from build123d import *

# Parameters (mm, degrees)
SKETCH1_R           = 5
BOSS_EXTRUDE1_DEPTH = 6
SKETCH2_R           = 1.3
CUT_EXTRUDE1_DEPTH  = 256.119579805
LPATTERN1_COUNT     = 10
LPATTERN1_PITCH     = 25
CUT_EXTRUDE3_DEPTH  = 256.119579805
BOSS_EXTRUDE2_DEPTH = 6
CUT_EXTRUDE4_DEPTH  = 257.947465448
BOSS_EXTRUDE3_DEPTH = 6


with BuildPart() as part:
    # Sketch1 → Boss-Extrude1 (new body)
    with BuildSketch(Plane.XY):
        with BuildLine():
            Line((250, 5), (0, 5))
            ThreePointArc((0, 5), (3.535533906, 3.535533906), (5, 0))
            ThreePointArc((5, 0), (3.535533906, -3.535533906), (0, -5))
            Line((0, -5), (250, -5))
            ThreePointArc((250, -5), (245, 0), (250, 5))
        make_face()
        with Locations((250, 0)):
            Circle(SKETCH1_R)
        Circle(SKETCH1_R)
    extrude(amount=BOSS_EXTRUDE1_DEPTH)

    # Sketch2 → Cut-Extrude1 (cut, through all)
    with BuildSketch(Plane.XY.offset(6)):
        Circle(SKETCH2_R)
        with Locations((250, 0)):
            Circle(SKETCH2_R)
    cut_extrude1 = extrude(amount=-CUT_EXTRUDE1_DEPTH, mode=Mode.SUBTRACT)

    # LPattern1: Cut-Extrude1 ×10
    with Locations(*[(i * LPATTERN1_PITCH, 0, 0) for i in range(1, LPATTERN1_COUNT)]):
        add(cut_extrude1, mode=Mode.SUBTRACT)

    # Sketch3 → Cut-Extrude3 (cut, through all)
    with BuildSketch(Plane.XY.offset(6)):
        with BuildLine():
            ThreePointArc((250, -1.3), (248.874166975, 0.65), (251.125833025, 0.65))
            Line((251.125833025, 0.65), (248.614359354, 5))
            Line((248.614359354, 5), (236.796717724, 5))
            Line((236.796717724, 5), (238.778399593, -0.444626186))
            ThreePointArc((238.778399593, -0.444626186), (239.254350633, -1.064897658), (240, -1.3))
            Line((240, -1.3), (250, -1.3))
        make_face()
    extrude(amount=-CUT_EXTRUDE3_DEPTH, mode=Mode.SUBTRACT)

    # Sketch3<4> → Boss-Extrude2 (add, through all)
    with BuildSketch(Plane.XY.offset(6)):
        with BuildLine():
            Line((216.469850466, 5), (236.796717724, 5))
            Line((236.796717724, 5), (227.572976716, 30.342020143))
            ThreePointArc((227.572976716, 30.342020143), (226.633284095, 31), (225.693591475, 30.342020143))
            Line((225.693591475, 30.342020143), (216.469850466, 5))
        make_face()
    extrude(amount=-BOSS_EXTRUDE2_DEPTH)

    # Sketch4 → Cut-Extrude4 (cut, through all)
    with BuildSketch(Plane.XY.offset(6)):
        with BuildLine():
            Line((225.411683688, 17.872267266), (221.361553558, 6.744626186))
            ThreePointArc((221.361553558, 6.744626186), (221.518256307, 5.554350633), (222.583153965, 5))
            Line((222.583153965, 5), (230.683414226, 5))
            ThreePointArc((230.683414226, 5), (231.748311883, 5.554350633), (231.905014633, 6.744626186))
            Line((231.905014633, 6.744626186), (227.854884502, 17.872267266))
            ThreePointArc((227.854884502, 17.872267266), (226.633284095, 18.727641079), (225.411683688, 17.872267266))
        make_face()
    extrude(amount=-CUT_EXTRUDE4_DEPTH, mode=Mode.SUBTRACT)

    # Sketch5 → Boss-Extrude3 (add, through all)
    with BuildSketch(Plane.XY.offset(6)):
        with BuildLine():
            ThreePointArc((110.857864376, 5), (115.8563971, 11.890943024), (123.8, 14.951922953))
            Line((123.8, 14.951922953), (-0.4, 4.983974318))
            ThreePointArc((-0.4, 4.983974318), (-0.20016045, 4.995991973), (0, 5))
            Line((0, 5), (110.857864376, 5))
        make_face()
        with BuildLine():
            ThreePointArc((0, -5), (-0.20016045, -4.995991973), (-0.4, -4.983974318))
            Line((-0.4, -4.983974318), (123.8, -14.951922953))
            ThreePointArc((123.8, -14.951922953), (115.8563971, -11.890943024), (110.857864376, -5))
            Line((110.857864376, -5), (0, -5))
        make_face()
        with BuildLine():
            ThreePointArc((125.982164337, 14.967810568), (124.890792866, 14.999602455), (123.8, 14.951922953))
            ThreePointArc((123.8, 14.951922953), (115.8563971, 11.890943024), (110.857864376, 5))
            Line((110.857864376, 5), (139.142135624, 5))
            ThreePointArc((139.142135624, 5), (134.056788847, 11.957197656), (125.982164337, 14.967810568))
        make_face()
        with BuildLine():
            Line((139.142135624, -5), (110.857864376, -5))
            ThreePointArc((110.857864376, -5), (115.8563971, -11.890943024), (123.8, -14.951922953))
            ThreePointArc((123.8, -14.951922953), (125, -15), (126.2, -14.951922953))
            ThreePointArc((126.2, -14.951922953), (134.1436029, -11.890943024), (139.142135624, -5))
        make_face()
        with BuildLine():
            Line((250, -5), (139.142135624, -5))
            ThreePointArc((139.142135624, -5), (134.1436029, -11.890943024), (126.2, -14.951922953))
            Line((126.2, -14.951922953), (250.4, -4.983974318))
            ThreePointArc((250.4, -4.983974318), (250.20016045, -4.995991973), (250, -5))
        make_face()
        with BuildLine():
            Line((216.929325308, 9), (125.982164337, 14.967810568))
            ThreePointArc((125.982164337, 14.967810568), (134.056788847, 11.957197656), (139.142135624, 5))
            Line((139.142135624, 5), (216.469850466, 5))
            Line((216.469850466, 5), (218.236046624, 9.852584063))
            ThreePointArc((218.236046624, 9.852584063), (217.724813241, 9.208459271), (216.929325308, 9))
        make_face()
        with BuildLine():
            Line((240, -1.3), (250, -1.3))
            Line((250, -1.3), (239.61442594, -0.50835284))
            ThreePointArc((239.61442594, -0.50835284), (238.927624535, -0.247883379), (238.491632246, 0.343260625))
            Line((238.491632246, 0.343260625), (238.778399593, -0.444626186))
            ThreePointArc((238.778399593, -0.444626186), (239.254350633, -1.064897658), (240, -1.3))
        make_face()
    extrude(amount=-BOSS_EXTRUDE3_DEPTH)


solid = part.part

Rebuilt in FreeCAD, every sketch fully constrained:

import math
import FreeCAD as App
import Part
import Sketcher
from FreeCAD import Vector
Q = App.Units.Quantity

doc = App.newDocument("Part")
body = doc.addObject("PartDesign::Body", "Body")

# Sketch on XY plane
sketch1 = doc.addObject("Sketcher::SketchObject", "Sketch")
body.addObject(sketch1)
sketch1.AttachmentSupport = (doc.XY_Plane, [""])
sketch1.MapMode = "FlatFace"
sketch1.addGeometry([
    Part.LineSegment(Vector(250, 5, 0), Vector(0, 5, 0)),
    Part.ArcOfCircle(Part.Circle(Vector(0, 0, 0), Vector(0, 0, 1), 5), math.radians(90), math.radians(270)),
    Part.LineSegment(Vector(0, -5, 0), Vector(250, -5, 0)),
    Part.ArcOfCircle(Part.Circle(Vector(250, 0, 0), Vector(0, 0, 1), 5), math.radians(-90), math.radians(90)),
], False)
sketch1.addConstraint([
    Sketcher.Constraint("Tangent", 0, 2, 1, 1),
    Sketcher.Constraint("Tangent", 1, 2, 2, 1),
    Sketcher.Constraint("Tangent", 2, 2, 3, 1),
    Sketcher.Constraint("Tangent", 3, 2, 0, 1),
    Sketcher.Constraint("Horizontal", 0),
    Sketcher.Constraint("Horizontal", 2),
    Sketcher.Constraint("Coincident", 1, 3, -1, 1),
    Sketcher.Constraint("Radius", 1, Q("5 mm")),
    Sketcher.Constraint("DistanceX", 0, 2, 0, 1, Q("250 mm")),
])
pad1 = doc.addObject("PartDesign::Pad", "Pad")
body.addObject(pad1)
pad1.Profile = sketch1
pad1.Length = 6

# Sketch on XY plane
sketch2 = doc.addObject("Sketcher::SketchObject", "Sketch001")
body.addObject(sketch2)
sketch2.AttachmentSupport = (doc.XY_Plane, [""])
sketch2.MapMode = "FlatFace"
sketch2.AttachmentOffset = App.Placement(Vector(0, 0, 6), App.Rotation())
sketch2.addGeometry([
    Part.Circle(Vector(0, 0, 0), Vector(0, 0, 1), 1.3),
    Part.Circle(Vector(250, 0, 0), Vector(0, 0, 1), 1.3),
], False)
sketch2.addConstraint([
    Sketcher.Constraint("Coincident", 0, 3, -1, 1),
    Sketcher.Constraint("Equal", 0, 1),
    Sketcher.Constraint("PointOnObject", 1, 3, -1),
    Sketcher.Constraint("Diameter", 0, Q("2.6 mm")),
    Sketcher.Constraint("DistanceX", -1, 1, 1, 3, Q("250 mm")),
])
pocket1 = doc.addObject("PartDesign::Pocket", "Pocket")
body.addObject(pocket1)
pocket1.Profile = sketch2
pocket1.Type = "ThroughAll"
doc.recompute()

linearpattern = doc.addObject("PartDesign::LinearPattern", "LinearPattern")
body.addObject(linearpattern)
linearpattern.Originals = [pocket1]
linearpattern.Direction = (doc.X_Axis, [""])
linearpattern.Mode = "offset"
linearpattern.Offset = 25
linearpattern.Occurrences = 10
body.Tip = linearpattern

# Sketch on XY plane
sketch3 = doc.addObject("Sketcher::SketchObject", "Sketch002")
body.addObject(sketch3)
sketch3.AttachmentSupport = (doc.XY_Plane, [""])
sketch3.MapMode = "FlatFace"
sketch3.AttachmentOffset = App.Placement(Vector(0, 0, 6), App.Rotation())
sketch3.addGeometry([
    Part.ArcOfCircle(Part.Circle(Vector(250, 0, 0), Vector(0, 0, 1), 1.3), math.radians(30), math.radians(270)),  # 0
    Part.LineSegment(Vector(251.1, 0.7, 0), Vector(248.6, 5, 0)),  # 1
    Part.LineSegment(Vector(248.6, 5, 0), Vector(236.8, 5, 0)),  # 2
    Part.LineSegment(Vector(236.8, 5, 0), Vector(238.8, -0.4, 0)),  # 3
    Part.ArcOfCircle(Part.Circle(Vector(240, 0, 0), Vector(0, 0, 1), 1.3), math.radians(-160), math.radians(-90)),  # 4
    Part.LineSegment(Vector(240, -1.3, 0), Vector(250, -1.3, 0)),  # 5
], False)
sketch3.addConstraint([
    Sketcher.Constraint("Tangent", 0, 1, 1, 1),
    Sketcher.Constraint("Coincident", 1, 2, 2, 1),
    Sketcher.Constraint("Coincident", 2, 2, 3, 1),
    Sketcher.Constraint("Tangent", 3, 2, 4, 1),
    Sketcher.Constraint("Tangent", 4, 2, 5, 1),
    Sketcher.Constraint("Tangent", 5, 2, 0, 2),
    Sketcher.Constraint("Horizontal", 2),
    Sketcher.Constraint("Horizontal", 5),
    Sketcher.Constraint("Equal", 0, 4),
    Sketcher.Constraint("PointOnObject", 0, 3, -1),
    Sketcher.Constraint("Radius", 0, Q("1.3 mm")),
    Sketcher.Constraint("DistanceX", 5, 1, 5, 2, Q("10 mm")),
    Sketcher.Constraint("Angle", 1, Q("120 deg")),
    Sketcher.Constraint("Angle", 3, Q("-70 deg")),
    Sketcher.Constraint("DistanceX", -1, 1, 0, 3, Q("250 mm")),
    Sketcher.Constraint("DistanceY", -1, 1, 1, 2, Q("5 mm")),
])
pocket2 = doc.addObject("PartDesign::Pocket", "Pocket001")
body.addObject(pocket2)
pocket2.Profile = sketch3
pocket2.Type = "ThroughAll"

# Sketch on XY plane
sketch4 = doc.addObject("Sketcher::SketchObject", "Sketch003")
body.addObject(sketch4)
sketch4.AttachmentSupport = (doc.XY_Plane, [""])
sketch4.MapMode = "FlatFace"
sketch4.AttachmentOffset = App.Placement(Vector(0, 0, 6), App.Rotation())
sketch4.addGeometry([
    Part.LineSegment(Vector(216.5, 5, 0), Vector(236.8, 5, 0)),
    Part.LineSegment(Vector(236.8, 5, 0), Vector(227.6, 30.3, 0)),
    Part.ArcOfCircle(Part.Circle(Vector(226.6, 30, 0), Vector(0, 0, 1), 1), math.radians(20), math.radians(160)),
    Part.LineSegment(Vector(225.7, 30.3, 0), Vector(216.5, 5, 0)),
], False)
sketch4.addConstraint([
    Sketcher.Constraint("Coincident", 0, 2, 1, 1),
    Sketcher.Constraint("Tangent", 1, 2, 2, 1),
    Sketcher.Constraint("Tangent", 2, 2, 3, 1),
    Sketcher.Constraint("Coincident", 3, 2, 0, 1),
    Sketcher.Constraint("Horizontal", 0),
    Sketcher.Constraint("Horizontal", 1, 2, 2, 2),
    Sketcher.Constraint("Radius", 2, Q("1 mm")),
    Sketcher.Constraint("Angle", 1, Q("110 deg")),
    Sketcher.Constraint("DistanceY", -1, 1, 2, 3, Q("30 mm")),
    Sketcher.Constraint("DistanceY", -1, 1, 0, 2, Q("5 mm")),
    Sketcher.Constraint("DistanceX", -1, 1, 2, 2, Q("225.693591 mm")),
])
pad2 = doc.addObject("PartDesign::Pad", "Pad001")
body.addObject(pad2)
pad2.Profile = sketch4
pad2.Length = 6
pad2.Reversed = True

# Sketch on XY plane
sketch5 = doc.addObject("Sketcher::SketchObject", "Sketch004")
body.addObject(sketch5)
sketch5.AttachmentSupport = (doc.XY_Plane, [""])
sketch5.MapMode = "FlatFace"
sketch5.AttachmentOffset = App.Placement(Vector(0, 0, 6), App.Rotation())
sketch5.addGeometry([
    Part.LineSegment(Vector(225.4, 17.9, 0), Vector(221.4, 6.7, 0)),  # 0
    Part.ArcOfCircle(Part.Circle(Vector(222.6, 6.3, 0), Vector(0, 0, 1), 1.3), math.radians(160), math.radians(270)),  # 1
    Part.LineSegment(Vector(222.6, 5, 0), Vector(230.7, 5, 0)),  # 2
    Part.ArcOfCircle(Part.Circle(Vector(230.7, 6.3, 0), Vector(0, 0, 1), 1.3), math.radians(-90), math.radians(20)),  # 3
    Part.LineSegment(Vector(231.9, 6.7, 0), Vector(227.9, 17.9, 0)),  # 4
    Part.ArcOfCircle(Part.Circle(Vector(226.6, 17.4, 0), Vector(0, 0, 1), 1.3), math.radians(20), math.radians(160)),  # 5
], False)
sketch5.addConstraint([
    Sketcher.Constraint("Tangent", 0, 2, 1, 1),
    Sketcher.Constraint("Tangent", 1, 2, 2, 1),
    Sketcher.Constraint("Tangent", 2, 2, 3, 1),
    Sketcher.Constraint("Tangent", 3, 2, 4, 1),
    Sketcher.Constraint("Tangent", 4, 2, 5, 1),
    Sketcher.Constraint("Tangent", 5, 2, 0, 1),
    Sketcher.Constraint("Horizontal", 2),
    Sketcher.Constraint("Equal", 1, 3),
    Sketcher.Constraint("Equal", 3, 5),
    Sketcher.Constraint("Horizontal", 0, 2, 3, 2),
    Sketcher.Constraint("Radius", 1, Q("1.3 mm")),
    Sketcher.Constraint("Angle", 0, Q("-110 deg")),
    Sketcher.Constraint("DistanceY", -1, 1, 1, 2, Q("5 mm")),
    Sketcher.Constraint("DistanceX", 2, 1, 2, 2, Q("8.10026 mm")),
    Sketcher.Constraint("DistanceX", -1, 1, 1, 3, Q("222.583154 mm")),
])
pocket3 = doc.addObject("PartDesign::Pocket", "Pocket002")
body.addObject(pocket3)
pocket3.Profile = sketch5
pocket3.Type = "ThroughAll"

# Sketch on XY plane
sketch6 = doc.addObject("Sketcher::SketchObject", "Sketch005")
body.addObject(sketch6)
sketch6.AttachmentSupport = (doc.XY_Plane, [""])
sketch6.MapMode = "FlatFace"
sketch6.AttachmentOffset = App.Placement(Vector(0, 0, 6), App.Rotation())
sketch6.addGeometry([
    Part.LineSegment(Vector(123.8, 14.95, 0), Vector(-0.4, 4.98, 0)),  # 0
    Part.ArcOfCircle(Part.Circle(Vector(0, 0, 0), Vector(0, 0, 1), 5), math.radians(90), math.radians(94.59)),  # 1
    Part.LineSegment(Vector(0, 5, 0), Vector(216.47, 5, 0)),  # 2
    Part.LineSegment(Vector(216.47, 5, 0), Vector(218.24, 9.85, 0)),  # 3
    Part.ArcOfCircle(Part.Circle(Vector(217.01, 10.3, 0), Vector(0, 0, 1), 1.3), math.radians(-94), math.radians(-20)),  # 4
    Part.LineSegment(Vector(216.93, 9, 0), Vector(125.98, 14.97, 0)),  # 5
    Part.ArcOfCircle(Part.Circle(Vector(125, 0, 0), Vector(0, 0, 1), 15), math.radians(86.25), math.radians(94.59)),  # 6
    Part.ArcOfCircle(Part.Circle(Vector(0, 0, 0), Vector(0, 0, 1), 5), math.radians(-94.59), math.radians(-90)),  # 7
    Part.LineSegment(Vector(-0.4, -4.98, 0), Vector(123.8, -14.95, 0)),  # 8
    Part.ArcOfCircle(Part.Circle(Vector(125, 0, 0), Vector(0, 0, 1), 15), math.radians(-94.59), math.radians(-85.41)),  # 9
    Part.LineSegment(Vector(126.2, -14.95, 0), Vector(250.4, -4.98, 0)),  # 10
    Part.ArcOfCircle(Part.Circle(Vector(250, 0, 0), Vector(0, 0, 1), 5), math.radians(-90), math.radians(-85.41)),  # 11
    Part.LineSegment(Vector(250, -5, 0), Vector(0, -5, 0)),  # 12
    Part.LineSegment(Vector(240, -1.3, 0), Vector(250, -1.3, 0)),  # 13
    Part.LineSegment(Vector(250, -1.3, 0), Vector(239.61, -0.51, 0)),  # 14
    Part.ArcOfCircle(Part.Circle(Vector(239.71, 0.79, 0), Vector(0, 0, 1), 1.3), math.radians(-160), math.radians(-94)),  # 15
    Part.LineSegment(Vector(238.49, 0.34, 0), Vector(238.78, -0.44, 0)),  # 16
    Part.ArcOfCircle(Part.Circle(Vector(240, 0, 0), Vector(0, 0, 1), 1.3), math.radians(-160), math.radians(-90)),  # 17
], False)
sketch6.addConstraint([
    Sketcher.Constraint("Tangent", 0, 2, 1, 2),
    Sketcher.Constraint("Tangent", 1, 1, 2, 1),
    Sketcher.Constraint("Coincident", 2, 2, 3, 1),
    Sketcher.Constraint("Tangent", 3, 2, 4, 2),
    Sketcher.Constraint("Tangent", 4, 1, 5, 1),
    Sketcher.Constraint("Tangent", 5, 2, 6, 1),
    Sketcher.Constraint("Tangent", 6, 2, 0, 1),
    Sketcher.Constraint("Tangent", 7, 1, 8, 1),
    Sketcher.Constraint("Tangent", 8, 2, 9, 1),
    Sketcher.Constraint("Tangent", 9, 2, 10, 1),
    Sketcher.Constraint("Tangent", 10, 2, 11, 2),
    Sketcher.Constraint("Tangent", 11, 1, 12, 1),
    Sketcher.Constraint("Tangent", 12, 2, 7, 2),
    Sketcher.Constraint("Coincident", 13, 2, 14, 1),
    Sketcher.Constraint("Tangent", 14, 2, 15, 2),
    Sketcher.Constraint("Tangent", 15, 1, 16, 1),
    Sketcher.Constraint("Tangent", 16, 2, 17, 1),
    Sketcher.Constraint("Tangent", 17, 2, 13, 1),
    Sketcher.Constraint("Horizontal", 2),
    Sketcher.Constraint("Horizontal", 12),
    Sketcher.Constraint("Horizontal", 13),
    Sketcher.Constraint("Coincident", 1, 3, -1, 1),
    Sketcher.Constraint("Coincident", 7, 3, -1, 1),
    Sketcher.Constraint("Coincident", 9, 3, 6, 3),
    Sketcher.Constraint("Equal", 1, 7),
    Sketcher.Constraint("Equal", 6, 9),
    Sketcher.Constraint("Equal", 7, 11),
    Sketcher.Constraint("Equal", 4, 15),
    Sketcher.Constraint("Equal", 15, 17),
    Sketcher.Constraint("PointOnObject", 6, 3, -1),
    Sketcher.Constraint("PointOnObject", 17, 3, -1),
    Sketcher.Constraint("Parallel", 0, 10),
    Sketcher.Constraint("Vertical", 11, 1, 13, 2),
    Sketcher.Constraint("Radius", 1, Q("5 mm")),
    Sketcher.Constraint("Radius", 6, Q("15 mm")),
    Sketcher.Constraint("Radius", 4, Q("1.3 mm")),
    Sketcher.Constraint("DistanceX", 12, 2, 12, 1, Q("250 mm")),
    Sketcher.Constraint("DistanceX", 13, 1, 13, 2, Q("10 mm")),
    Sketcher.Constraint("Angle", 3, Q("70 deg")),
    Sketcher.Constraint("Angle", 16, Q("-70 deg")),
    Sketcher.Constraint("DistanceY", -1, 1, 4, 1, Q("9 mm")),
    Sketcher.Constraint("DistanceX", 2, 1, 2, 2, Q("216.46985 mm")),
    Sketcher.Constraint("Distance", 16, Q("0.838452 mm")),
])
pad3 = doc.addObject("PartDesign::Pad", "Pad002")
body.addObject(pad3)
pad3.Profile = sketch6
pad3.Length = 6
pad3.Reversed = True

doc.recompute()
